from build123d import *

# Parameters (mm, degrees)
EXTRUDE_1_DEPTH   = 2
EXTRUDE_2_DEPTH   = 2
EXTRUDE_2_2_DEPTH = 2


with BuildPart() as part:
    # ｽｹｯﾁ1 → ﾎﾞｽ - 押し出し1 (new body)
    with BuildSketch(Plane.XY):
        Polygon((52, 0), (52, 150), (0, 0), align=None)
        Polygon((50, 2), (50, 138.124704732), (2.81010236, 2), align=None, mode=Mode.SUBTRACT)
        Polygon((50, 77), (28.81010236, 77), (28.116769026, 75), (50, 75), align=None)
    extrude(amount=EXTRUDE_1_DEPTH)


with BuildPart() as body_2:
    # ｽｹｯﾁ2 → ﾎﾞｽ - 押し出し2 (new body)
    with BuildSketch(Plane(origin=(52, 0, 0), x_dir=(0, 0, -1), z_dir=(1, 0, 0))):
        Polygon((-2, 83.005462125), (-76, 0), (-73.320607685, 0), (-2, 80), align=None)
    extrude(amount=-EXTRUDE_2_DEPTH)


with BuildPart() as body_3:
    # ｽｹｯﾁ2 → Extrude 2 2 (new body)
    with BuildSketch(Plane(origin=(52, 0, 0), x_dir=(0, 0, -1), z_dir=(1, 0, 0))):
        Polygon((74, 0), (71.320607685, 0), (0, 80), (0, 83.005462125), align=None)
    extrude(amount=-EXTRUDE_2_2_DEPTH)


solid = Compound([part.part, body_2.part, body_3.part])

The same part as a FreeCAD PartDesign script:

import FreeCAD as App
import Part
import Sketcher
from FreeCAD import Vector


def add_polygon(sketch, points):
    """Adds a closed chain of lines whose ends are joined by coincident constraints."""
    first, n = sketch.GeometryCount, len(points)
    for a, b in zip(points, points[1:] + points[:1]):
        sketch.addGeometry(Part.LineSegment(App.Vector(*a, 0), App.Vector(*b, 0)), False)
    for i in range(n):
        sketch.addConstraint(Sketcher.Constraint("Coincident", first + i, 2, first + (i + 1) % n, 1))

doc = App.newDocument("Part")
params = doc.addObject("Spreadsheet::Sheet", "Params")
for row, (alias, value) in enumerate([
    ("sketch1_width", "52 mm"),
    ("sketch1_height", "150 mm"),
    ("sketch1_height2", "73 mm"),
    ("pad1_length", "2 mm"),
    ("pad2_length", "2 mm"),
    ("pad3_length", "2 mm"),
], start=1):
    params.set(f"A{row}", alias)
    params.set(f"B{row}", "=" + value)
    params.setAlias(f"B{row}", alias)

body = doc.addObject("PartDesign::Body", "Body")

# Sketch on XY plane
sketch1 = doc.addObject("Sketcher::SketchObject", "Sketch")
body.addObject(sketch1)
sketch1.AttachmentSupport = (doc.XY_Plane, [""])
sketch1.MapMode = "FlatFace"
add_polygon(sketch1, [(52, 0), (52, 150), (0, 0)])  # lines 0-2
add_polygon(sketch1, [(50, 75), (50, 2), (3, 2), (28, 75)])  # lines 3-6
add_polygon(sketch1, [(50, 138), (50, 77), (29, 77)])  # lines 7-9
sketch1.addConstraint([
    Sketcher.Constraint("Vertical", 0),
    Sketcher.Constraint("Horizontal", 2),
    Sketcher.Constraint("Vertical", 3),
    Sketcher.Constraint("Horizontal", 4),
    Sketcher.Constraint("Horizontal", 6),
    Sketcher.Constraint("Vertical", 7),
    Sketcher.Constraint("Horizontal", 8),
    Sketcher.Constraint("Coincident", 1, 2, -1, 1),
    Sketcher.Constraint("Parallel", 1, 5),
    Sketcher.Constraint("Parallel", 5, 9),
    Sketcher.Constraint("Vertical", 6, 2, 7, 2),
    Sketcher.Constraint("DistanceX", 2, 1, 2, 2, 52.0),
    Sketcher.Constraint("DistanceY", 0, 1, 0, 2, 150.0),
    Sketcher.Constraint("DistanceY", 3, 2, 3, 1, 73.0),
    Sketcher.Constraint("DistanceX", -1, 1, 3, 2, 50.0),
    Sketcher.Constraint("DistanceY", -1, 1, 3, 2, 2.0),
    Sketcher.Constraint("DistanceY", -1, 1, 7, 2, 77.0),
    Sketcher.Constraint("DistanceX", 6, 1, 6, 2, 21.883231),
    Sketcher.Constraint("Distance", 9, 64.693441),
])
sketch1.setExpression("Constraints[21]", "Params.sketch1_width")
sketch1.setExpression("Constraints[22]", "Params.sketch1_height")
sketch1.setExpression("Constraints[23]", "Params.sketch1_height2")
pad1 = doc.addObject("PartDesign::Pad", "Pad")
body.addObject(pad1)
pad1.Profile = sketch1
pad1.setExpression("Length", "Params.pad1_length")
body2 = doc.addObject("PartDesign::Body", "Body001")

# Sketch on YZ plane
sketch2 = doc.addObject("Sketcher::SketchObject", "Sketch001")
body2.addObject(sketch2)
sketch2.AttachmentSupport = (doc.getObject("YZ_Plane001"), [""])
sketch2.MapMode = "FlatFace"
sketch2.AttachmentOffset = App.Placement(Vector(0, 0, 52), App.Rotation())
add_polygon(sketch2, [(83, 2), (0, 76), (0, 73.3), (80, 2)])  # lines 0-3
sketch2.addConstraint([
    Sketcher.Constraint("Vertical", 1),
    Sketcher.Constraint("Horizontal", 3),
    Sketcher.Constraint("PointOnObject", 0, 2, -2),
    Sketcher.Constraint("Parallel", 0, 2),
    Sketcher.Constraint("DistanceY", -1, 1, 0, 2, 76.0),
    Sketcher.Constraint("DistanceX", -1, 1, 2, 2, 80.0),
    Sketcher.Constraint("DistanceY", -1, 1, 2, 2, 2.0),
    Sketcher.Constraint("Distance", 0, 111.202099),
])
pad2 = doc.addObject("PartDesign::Pad", "Pad001")
body2.addObject(pad2)
pad2.Profile = sketch2
pad2.setExpression("Length", "Params.pad2_length")
pad2.Reversed = True
body3 = doc.addObject("PartDesign::Body", "Body002")

# Sketch on YZ plane
sketch3 = doc.addObject("Sketcher::SketchObject", "Sketch002")
body3.addObject(sketch3)
sketch3.AttachmentSupport = (doc.getObject("YZ_Plane002"), [""])
sketch3.MapMode = "FlatFace"
sketch3.AttachmentOffset = App.Placement(Vector(0, 0, 52), App.Rotation())
add_polygon(sketch3, [(0, -71.3), (0, -74), (83, 0), (80, 0)])  # lines 0-3
sketch3.addConstraint([
    Sketcher.Constraint("Vertical", 0),
    Sketcher.Constraint("Horizontal", 2),
    Sketcher.Constraint("PointOnObject", 0, 2, -2),
    Sketcher.Constraint("PointOnObject", 1, 2, -1),
    Sketcher.Constraint("Parallel", 1, 3),
    Sketcher.Constraint("DistanceY", 0, 2, -1, 1, 74.0),
    Sketcher.Constraint("DistanceX", -1, 1, 2, 2, 80.0),
    Sketcher.Constraint("Distance", 1, 111.202099),
])
pad3 = doc.addObject("PartDesign::Pad", "Pad002")
body3.addObject(pad3)
pad3.Profile = sketch3
pad3.setExpression("Length", "Params.pad3_length")
pad3.Reversed = True

doc.recompute()
